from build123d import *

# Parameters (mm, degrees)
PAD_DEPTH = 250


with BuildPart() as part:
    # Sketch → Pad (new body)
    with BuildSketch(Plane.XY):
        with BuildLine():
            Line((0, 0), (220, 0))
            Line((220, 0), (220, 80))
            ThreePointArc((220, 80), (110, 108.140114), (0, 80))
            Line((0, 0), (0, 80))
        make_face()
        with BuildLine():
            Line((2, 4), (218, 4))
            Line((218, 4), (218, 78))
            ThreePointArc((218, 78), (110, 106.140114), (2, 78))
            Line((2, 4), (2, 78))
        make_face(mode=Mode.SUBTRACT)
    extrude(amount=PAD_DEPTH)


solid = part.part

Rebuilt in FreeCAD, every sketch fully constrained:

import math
import FreeCAD as App
import Part
import Sketcher
from FreeCAD import Vector
Q = App.Units.Quantity

doc = App.newDocument("Part")
body = doc.addObject("PartDesign::Body", "Body")

# Sketch on XY plane
sketch1 = doc.addObject("Sketcher::SketchObject", "Sketch")
body.addObject(sketch1)
sketch1.AttachmentSupport = (doc.XY_Plane, [""])
sketch1.MapMode = "FlatFace"
sketch1.addGeometry([
    Part.LineSegment(Vector(0, 0, 0), Vector(220, 0, 0)),  # 0
    Part.LineSegment(Vector(220, 0, 0), Vector(220, 80, 0)),  # 1
    Part.ArcOfCircle(Part.Circle(Vector(110, -120.925518, 0), Vector(0, 0, 1), 229.065632), math.radians(61.30077), math.radians(118.69923)),  # 2
    Part.LineSegment(Vector(0, 80, 0), Vector(0, 0, 0)),  # 3
    Part.LineSegment(Vector(218, 4, 0), Vector(2, 4, 0)),  # 4
    Part.LineSegment(Vector(2, 4, 0), Vector(2, 78, 0)),  # 5
    Part.ArcOfCircle(Part.Circle(Vector(110, -115.17857, 0), Vector(0, 0, 1), 221.318684), math.radians(60.791831), math.radians(119.208169)),  # 6
    Part.LineSegment(Vector(218, 78, 0), Vector(218, 4, 0)),  # 7
], False)
sketch1.addConstraint([
    Sketcher.Constraint("Coincident", 0, 2, 1, 1),
    Sketcher.Constraint("Coincident", 1, 2, 2, 1),
    Sketcher.Constraint("Coincident", 2, 2, 3, 1),
    Sketcher.Constraint("Coincident", 3, 2, 0, 1),
    Sketcher.Constraint("Coincident", 4, 2, 5, 1),
    Sketcher.Constraint("Coincident", 5, 2, 6, 2),
    Sketcher.Constraint("Coincident", 6, 1, 7, 1),
    Sketcher.Constraint("Coincident", 7, 2, 4, 1),
    Sketcher.Constraint("Horizontal", 0),
    Sketcher.Constraint("Vertical", 1),
    Sketcher.Constraint("Vertical", 3),
    Sketcher.Constraint("Horizontal", 4),
    Sketcher.Constraint("Vertical", 5),
    Sketcher.Constraint("Vertical", 7),
    Sketcher.Constraint("Coincident", 3, 2, -1, 1),
    Sketcher.Constraint("Horizontal", 1, 2, 2, 2),
    Sketcher.Constraint("Horizontal", 5, 2, 6, 1),
    Sketcher.Constraint("Vertical", 2, 3, 6, 3),
    Sketcher.Constraint("DistanceX", 0, 1, 0, 2, Q("220 mm")),
    Sketcher.Constraint("DistanceX", 4, 2, 4, 1, Q("216 mm")),
    Sketcher.Constraint("DistanceY", 1, 1, 1, 2, Q("80 mm")),
    Sketcher.Constraint("DistanceY", 5, 1, 5, 2, Q("74 mm")),
    Sketcher.Constraint("DistanceY", -1, 1, 4, 2, Q("4 mm")),
    Sketcher.Constraint("Radius", 2, Q("229.065632 mm")),
    Sketcher.Constraint("Radius", 6, Q("221.318684 mm")),
])
pad1 = doc.addObject("PartDesign::Pad", "Pad")
body.addObject(pad1)
pad1.Profile = sketch1
pad1.Length = 250

doc.recompute()
